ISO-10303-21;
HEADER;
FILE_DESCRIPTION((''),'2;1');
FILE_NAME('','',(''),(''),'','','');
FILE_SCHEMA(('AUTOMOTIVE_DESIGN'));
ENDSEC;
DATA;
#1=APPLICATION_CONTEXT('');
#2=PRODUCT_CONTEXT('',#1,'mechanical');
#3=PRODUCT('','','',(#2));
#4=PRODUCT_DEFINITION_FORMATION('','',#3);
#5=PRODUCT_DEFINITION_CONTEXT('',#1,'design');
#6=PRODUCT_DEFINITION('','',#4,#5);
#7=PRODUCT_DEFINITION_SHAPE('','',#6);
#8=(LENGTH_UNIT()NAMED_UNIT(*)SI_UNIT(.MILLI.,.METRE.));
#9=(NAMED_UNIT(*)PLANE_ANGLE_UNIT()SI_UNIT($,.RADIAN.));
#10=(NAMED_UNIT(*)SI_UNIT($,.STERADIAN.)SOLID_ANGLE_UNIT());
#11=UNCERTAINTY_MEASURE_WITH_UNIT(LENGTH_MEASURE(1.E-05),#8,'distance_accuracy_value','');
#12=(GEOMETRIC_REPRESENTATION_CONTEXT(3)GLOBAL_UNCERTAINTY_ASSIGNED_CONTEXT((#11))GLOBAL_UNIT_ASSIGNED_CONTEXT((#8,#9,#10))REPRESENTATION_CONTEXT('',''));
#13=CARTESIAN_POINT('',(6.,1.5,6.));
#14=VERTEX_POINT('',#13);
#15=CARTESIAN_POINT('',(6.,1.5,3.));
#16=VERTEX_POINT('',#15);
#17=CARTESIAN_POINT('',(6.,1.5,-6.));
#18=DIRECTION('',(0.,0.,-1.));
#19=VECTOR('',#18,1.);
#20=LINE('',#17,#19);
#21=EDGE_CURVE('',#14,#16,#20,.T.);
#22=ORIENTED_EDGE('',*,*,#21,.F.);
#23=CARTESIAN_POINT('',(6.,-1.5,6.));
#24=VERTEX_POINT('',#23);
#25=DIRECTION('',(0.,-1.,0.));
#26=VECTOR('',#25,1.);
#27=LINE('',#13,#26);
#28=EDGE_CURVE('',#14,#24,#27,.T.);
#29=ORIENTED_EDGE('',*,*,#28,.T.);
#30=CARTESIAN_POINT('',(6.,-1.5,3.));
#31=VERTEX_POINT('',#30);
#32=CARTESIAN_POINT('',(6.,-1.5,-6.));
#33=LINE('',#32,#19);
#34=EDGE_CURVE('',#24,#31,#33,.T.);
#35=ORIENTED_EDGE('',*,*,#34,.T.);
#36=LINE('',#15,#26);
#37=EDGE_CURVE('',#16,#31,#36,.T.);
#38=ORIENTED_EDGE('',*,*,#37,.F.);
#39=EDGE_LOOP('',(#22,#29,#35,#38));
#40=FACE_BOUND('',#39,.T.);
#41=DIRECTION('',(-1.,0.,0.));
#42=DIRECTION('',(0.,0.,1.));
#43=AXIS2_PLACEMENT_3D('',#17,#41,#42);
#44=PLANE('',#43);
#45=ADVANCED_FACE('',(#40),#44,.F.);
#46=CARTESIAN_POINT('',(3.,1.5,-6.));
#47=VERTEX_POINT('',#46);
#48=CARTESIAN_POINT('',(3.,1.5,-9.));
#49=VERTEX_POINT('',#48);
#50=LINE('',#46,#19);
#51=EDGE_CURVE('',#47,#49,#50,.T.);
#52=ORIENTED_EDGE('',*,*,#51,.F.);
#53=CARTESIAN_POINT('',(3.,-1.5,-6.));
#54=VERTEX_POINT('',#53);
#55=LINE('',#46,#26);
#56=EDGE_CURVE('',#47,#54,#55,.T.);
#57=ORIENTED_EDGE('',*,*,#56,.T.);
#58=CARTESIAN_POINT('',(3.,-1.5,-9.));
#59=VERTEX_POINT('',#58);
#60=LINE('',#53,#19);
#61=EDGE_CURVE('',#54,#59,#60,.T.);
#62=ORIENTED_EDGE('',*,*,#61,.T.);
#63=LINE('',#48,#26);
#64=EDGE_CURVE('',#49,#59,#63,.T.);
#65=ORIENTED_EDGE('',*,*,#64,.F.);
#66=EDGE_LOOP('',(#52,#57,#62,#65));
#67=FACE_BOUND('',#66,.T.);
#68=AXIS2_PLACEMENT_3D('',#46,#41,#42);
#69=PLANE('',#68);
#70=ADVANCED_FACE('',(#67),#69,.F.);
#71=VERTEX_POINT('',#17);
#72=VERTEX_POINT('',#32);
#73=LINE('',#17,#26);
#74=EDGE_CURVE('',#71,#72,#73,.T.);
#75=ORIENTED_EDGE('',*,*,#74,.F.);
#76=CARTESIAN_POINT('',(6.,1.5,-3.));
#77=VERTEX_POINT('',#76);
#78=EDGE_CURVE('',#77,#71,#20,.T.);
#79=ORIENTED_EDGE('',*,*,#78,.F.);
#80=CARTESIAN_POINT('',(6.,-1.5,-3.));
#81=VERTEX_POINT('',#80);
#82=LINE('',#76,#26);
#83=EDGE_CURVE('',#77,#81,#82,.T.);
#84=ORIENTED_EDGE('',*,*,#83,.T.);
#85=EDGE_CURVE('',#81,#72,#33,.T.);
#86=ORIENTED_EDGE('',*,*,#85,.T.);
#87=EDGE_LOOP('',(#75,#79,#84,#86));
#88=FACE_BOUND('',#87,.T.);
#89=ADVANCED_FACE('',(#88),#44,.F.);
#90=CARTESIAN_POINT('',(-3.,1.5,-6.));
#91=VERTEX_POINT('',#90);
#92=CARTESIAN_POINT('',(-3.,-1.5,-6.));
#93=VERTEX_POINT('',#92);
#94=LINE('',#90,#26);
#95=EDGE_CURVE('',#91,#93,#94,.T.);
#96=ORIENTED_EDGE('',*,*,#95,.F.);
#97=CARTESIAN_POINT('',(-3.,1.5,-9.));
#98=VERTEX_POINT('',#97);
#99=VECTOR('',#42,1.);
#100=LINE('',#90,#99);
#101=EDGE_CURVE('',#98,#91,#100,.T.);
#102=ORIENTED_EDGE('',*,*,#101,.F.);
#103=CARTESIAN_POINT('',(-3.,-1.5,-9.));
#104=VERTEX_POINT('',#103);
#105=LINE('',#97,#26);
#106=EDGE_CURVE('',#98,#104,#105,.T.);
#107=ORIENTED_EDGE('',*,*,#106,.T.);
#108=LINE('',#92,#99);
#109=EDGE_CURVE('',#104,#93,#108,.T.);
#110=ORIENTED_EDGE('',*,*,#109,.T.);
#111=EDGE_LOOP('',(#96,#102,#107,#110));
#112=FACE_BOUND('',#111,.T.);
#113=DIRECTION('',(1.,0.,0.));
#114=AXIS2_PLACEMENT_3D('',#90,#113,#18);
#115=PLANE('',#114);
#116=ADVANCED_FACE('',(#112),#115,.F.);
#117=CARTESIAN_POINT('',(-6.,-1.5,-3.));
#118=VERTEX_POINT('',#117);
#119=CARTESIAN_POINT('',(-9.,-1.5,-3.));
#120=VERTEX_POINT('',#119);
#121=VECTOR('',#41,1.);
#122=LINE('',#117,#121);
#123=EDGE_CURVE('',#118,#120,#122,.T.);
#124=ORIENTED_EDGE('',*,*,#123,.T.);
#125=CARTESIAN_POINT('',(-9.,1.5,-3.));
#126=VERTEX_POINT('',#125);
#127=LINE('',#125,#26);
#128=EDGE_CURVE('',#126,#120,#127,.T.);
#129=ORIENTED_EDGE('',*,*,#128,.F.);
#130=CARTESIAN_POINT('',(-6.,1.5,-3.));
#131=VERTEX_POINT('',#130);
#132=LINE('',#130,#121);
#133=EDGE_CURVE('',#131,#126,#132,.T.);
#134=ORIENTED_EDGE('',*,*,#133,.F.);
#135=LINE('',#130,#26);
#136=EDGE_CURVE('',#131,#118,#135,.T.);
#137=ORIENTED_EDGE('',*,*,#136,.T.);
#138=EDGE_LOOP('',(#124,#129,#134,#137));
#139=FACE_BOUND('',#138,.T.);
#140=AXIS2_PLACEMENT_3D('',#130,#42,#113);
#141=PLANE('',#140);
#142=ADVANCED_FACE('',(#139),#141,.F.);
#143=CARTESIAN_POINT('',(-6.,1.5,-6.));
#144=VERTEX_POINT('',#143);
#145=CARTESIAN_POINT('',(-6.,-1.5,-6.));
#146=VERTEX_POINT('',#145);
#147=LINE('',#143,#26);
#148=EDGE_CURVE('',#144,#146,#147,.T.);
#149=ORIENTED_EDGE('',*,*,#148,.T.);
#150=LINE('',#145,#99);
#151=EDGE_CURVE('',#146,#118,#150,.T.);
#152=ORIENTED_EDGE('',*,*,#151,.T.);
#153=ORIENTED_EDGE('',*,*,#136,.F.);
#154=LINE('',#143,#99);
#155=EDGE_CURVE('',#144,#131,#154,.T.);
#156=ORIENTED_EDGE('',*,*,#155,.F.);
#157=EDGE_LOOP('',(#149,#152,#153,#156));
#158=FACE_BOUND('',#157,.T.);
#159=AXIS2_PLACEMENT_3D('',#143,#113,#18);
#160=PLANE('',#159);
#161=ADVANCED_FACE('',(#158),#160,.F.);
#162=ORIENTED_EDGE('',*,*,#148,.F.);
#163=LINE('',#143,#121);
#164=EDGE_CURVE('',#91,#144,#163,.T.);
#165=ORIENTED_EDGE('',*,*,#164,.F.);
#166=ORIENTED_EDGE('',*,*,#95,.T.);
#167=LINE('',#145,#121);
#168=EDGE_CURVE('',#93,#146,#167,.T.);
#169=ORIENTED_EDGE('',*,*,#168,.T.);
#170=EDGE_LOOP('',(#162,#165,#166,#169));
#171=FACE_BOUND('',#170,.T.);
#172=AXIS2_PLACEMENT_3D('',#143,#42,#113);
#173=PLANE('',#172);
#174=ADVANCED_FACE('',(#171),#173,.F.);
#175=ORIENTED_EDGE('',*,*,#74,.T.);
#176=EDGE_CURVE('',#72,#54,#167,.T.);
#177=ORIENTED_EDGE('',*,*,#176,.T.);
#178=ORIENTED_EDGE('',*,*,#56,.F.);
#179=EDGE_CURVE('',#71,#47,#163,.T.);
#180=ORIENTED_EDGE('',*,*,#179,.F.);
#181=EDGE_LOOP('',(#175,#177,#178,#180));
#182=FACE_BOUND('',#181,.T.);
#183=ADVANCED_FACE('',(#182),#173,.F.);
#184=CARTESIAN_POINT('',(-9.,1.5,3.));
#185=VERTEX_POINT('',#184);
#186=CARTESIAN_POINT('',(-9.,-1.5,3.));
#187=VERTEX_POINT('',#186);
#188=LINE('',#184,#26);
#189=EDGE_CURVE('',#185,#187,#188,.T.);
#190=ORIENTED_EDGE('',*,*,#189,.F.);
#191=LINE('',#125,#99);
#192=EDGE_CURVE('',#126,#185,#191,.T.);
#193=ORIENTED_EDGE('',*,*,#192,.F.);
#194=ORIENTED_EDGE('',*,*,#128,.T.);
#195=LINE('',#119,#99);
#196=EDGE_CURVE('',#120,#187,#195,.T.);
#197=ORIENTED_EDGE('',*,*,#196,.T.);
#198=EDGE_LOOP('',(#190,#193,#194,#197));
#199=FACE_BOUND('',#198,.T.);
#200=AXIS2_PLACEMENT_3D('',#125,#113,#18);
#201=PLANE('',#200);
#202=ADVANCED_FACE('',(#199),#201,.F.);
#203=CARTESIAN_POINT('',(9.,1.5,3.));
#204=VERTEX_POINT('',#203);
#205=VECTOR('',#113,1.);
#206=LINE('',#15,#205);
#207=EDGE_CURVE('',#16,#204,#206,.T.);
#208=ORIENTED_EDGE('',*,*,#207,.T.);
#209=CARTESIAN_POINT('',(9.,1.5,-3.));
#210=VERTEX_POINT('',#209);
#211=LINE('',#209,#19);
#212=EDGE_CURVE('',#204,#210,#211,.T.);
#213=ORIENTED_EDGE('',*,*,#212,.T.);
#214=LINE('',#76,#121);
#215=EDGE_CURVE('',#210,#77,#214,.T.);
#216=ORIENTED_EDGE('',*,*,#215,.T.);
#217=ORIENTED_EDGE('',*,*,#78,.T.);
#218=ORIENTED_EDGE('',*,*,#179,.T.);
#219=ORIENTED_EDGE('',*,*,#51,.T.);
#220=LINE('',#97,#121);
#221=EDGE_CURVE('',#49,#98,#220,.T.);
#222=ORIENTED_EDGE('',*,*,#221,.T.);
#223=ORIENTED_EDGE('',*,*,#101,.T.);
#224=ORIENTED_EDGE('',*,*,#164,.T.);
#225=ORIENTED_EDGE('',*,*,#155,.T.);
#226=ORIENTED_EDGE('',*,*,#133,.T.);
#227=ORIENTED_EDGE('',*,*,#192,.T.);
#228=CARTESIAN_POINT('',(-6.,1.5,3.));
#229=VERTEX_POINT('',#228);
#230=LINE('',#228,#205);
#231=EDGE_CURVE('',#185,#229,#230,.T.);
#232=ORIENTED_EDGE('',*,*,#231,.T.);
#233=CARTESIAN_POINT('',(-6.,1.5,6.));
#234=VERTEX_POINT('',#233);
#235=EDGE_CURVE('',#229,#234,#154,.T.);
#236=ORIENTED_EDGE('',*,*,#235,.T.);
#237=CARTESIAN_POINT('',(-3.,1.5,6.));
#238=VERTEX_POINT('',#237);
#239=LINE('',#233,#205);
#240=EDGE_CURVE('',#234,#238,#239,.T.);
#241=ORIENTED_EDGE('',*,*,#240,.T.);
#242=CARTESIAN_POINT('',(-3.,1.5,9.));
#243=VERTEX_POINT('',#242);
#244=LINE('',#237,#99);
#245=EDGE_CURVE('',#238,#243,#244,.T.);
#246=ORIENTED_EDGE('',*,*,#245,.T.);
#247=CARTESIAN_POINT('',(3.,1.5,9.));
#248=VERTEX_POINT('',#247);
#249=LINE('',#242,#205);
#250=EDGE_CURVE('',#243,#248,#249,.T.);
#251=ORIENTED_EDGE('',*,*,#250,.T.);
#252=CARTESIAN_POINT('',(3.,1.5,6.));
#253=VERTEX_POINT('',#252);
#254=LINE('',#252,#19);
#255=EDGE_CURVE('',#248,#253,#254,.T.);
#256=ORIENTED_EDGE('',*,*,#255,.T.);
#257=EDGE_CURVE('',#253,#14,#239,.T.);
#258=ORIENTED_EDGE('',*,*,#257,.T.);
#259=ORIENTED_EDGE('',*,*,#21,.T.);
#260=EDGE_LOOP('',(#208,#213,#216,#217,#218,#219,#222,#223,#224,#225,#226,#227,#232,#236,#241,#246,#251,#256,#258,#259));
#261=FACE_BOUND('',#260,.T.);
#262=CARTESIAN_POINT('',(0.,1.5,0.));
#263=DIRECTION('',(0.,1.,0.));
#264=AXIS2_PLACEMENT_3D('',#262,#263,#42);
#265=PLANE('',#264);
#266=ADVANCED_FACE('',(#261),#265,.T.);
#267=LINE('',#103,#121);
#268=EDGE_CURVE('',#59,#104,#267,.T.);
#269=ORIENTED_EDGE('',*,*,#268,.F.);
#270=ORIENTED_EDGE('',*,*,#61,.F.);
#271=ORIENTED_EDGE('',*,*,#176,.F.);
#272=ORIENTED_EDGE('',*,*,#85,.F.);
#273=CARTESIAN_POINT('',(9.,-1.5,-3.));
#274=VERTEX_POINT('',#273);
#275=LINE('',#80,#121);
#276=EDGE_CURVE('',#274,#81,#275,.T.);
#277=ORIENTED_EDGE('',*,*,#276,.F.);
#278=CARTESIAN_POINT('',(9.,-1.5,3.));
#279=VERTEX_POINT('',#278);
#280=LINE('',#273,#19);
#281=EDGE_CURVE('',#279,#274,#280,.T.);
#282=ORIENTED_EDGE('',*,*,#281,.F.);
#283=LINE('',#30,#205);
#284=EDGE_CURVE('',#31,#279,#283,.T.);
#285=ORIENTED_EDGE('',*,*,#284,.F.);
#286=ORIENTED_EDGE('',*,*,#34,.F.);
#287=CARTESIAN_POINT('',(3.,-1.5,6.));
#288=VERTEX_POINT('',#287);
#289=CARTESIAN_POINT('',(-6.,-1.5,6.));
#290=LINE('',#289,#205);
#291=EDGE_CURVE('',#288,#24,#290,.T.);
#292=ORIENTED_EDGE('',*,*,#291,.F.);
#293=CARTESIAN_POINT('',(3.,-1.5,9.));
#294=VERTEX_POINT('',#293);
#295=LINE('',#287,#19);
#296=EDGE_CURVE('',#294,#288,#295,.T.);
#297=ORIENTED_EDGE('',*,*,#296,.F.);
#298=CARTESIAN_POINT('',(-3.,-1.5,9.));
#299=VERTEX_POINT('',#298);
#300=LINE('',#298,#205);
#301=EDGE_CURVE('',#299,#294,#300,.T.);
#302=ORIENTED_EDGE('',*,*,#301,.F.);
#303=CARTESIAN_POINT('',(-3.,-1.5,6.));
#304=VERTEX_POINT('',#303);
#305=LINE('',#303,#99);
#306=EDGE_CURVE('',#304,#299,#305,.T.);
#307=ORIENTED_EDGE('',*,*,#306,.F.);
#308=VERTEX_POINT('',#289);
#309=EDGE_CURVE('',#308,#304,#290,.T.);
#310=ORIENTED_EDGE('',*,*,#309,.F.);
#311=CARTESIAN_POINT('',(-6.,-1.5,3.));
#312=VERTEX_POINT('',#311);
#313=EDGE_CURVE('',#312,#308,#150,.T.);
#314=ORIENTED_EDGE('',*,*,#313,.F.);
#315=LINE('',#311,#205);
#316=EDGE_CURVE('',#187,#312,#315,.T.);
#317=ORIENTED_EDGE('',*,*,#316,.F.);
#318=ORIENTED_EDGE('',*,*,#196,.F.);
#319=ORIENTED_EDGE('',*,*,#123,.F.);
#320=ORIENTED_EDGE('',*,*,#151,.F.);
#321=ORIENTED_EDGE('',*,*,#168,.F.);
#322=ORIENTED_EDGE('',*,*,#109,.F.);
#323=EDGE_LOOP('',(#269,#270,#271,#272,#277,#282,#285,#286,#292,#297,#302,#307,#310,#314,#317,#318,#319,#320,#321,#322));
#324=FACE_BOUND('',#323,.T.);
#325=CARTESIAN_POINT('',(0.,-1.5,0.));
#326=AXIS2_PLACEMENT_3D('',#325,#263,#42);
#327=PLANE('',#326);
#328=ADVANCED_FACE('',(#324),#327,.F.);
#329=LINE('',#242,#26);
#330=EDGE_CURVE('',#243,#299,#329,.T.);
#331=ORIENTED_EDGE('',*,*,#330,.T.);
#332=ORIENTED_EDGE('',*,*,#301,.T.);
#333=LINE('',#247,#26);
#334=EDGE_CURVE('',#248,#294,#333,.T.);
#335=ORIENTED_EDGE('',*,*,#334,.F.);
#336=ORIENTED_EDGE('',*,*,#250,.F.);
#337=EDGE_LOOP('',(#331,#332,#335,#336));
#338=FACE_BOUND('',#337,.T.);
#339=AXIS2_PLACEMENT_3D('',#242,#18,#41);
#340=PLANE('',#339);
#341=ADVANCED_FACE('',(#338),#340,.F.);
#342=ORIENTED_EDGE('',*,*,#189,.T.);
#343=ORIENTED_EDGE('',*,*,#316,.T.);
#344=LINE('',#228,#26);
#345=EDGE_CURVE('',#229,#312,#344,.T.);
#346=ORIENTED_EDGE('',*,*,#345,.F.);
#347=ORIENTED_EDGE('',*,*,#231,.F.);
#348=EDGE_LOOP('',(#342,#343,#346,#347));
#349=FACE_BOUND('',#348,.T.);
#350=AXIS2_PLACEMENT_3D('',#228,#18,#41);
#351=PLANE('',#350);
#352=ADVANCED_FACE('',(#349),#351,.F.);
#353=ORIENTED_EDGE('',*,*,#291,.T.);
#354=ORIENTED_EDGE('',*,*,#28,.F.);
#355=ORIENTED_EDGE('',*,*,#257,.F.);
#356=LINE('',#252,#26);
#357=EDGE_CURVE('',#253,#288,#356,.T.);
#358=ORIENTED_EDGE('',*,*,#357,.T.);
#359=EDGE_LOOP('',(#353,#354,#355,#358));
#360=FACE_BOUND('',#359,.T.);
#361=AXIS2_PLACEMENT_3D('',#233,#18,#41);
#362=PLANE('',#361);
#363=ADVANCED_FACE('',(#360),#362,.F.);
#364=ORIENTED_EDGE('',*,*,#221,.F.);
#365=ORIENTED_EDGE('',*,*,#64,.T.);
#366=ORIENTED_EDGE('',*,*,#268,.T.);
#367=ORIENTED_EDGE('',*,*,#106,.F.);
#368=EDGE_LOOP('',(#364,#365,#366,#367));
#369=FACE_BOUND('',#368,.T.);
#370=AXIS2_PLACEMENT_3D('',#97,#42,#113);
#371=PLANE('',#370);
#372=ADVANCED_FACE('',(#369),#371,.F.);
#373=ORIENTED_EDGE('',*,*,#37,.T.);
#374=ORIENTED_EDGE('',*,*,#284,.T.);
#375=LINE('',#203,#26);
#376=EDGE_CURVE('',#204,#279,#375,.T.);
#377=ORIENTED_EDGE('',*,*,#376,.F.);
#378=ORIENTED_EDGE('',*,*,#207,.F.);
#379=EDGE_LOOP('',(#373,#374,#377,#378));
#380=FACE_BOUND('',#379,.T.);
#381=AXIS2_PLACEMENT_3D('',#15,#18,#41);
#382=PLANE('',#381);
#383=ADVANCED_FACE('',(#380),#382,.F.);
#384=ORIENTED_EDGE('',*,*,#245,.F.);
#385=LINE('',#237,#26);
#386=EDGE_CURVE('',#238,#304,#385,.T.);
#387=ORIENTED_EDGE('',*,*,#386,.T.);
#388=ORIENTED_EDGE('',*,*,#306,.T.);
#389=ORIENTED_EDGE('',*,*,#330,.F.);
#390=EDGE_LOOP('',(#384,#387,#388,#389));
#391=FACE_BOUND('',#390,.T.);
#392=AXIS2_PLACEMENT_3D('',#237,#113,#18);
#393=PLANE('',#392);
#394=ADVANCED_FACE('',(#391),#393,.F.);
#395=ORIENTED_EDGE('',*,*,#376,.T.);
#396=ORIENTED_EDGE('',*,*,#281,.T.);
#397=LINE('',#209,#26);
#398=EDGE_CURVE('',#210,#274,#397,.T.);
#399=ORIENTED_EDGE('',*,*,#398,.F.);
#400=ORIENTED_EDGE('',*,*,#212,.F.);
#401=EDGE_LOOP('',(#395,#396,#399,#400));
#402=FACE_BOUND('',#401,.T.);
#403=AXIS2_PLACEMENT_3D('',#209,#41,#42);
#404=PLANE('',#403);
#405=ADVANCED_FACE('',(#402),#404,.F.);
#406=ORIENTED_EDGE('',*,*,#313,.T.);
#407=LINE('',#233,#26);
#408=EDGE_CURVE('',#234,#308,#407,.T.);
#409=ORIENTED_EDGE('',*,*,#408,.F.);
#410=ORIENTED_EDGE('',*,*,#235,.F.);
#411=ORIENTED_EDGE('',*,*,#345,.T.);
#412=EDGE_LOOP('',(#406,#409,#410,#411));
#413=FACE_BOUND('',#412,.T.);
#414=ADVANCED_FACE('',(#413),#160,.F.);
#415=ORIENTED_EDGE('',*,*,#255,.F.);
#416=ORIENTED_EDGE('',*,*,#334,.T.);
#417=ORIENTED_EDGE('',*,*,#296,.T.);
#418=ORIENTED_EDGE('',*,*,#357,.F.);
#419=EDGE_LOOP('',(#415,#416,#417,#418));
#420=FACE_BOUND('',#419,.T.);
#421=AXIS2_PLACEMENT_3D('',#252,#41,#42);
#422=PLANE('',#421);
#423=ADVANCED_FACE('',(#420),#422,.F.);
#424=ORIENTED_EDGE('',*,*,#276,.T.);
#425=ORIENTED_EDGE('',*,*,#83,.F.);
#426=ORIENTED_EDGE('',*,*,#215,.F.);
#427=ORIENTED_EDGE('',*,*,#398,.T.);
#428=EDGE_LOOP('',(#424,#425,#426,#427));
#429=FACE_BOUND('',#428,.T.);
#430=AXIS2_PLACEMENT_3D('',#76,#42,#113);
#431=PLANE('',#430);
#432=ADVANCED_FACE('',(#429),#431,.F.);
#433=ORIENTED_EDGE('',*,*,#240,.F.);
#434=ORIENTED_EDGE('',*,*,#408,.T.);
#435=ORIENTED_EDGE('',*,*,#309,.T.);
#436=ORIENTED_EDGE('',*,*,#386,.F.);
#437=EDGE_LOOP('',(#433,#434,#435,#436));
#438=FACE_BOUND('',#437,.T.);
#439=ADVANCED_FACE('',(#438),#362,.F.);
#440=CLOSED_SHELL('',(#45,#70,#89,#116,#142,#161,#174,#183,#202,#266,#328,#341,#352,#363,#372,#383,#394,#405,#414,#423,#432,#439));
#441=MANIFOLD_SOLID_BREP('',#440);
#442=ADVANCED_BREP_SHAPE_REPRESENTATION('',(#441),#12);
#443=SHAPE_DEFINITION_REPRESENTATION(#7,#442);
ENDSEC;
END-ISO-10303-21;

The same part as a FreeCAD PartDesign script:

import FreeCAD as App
import Part
import Sketcher

V = App.Vector

doc = App.newDocument("Part")
params = doc.addObject("Spreadsheet::Sheet", "Params")
for row, (alias, value) in enumerate([
    ("sketch1_width", "12 mm"),
    ("pad1_length", "3 mm"),
    ("sketch2_width", "6 mm"),
    ("sketch2_width2", "3 mm"),
    ("pad2_length", "3 mm"),
], start=1):
    params.set(f"A{row}", alias)
    params.set(f"B{row}", "=" + value)
    params.setAlias(f"B{row}", alias)

body = doc.addObject("PartDesign::Body", "Body")

sketch1 = body.newObject("Sketcher::SketchObject", "Sketch")
sketch1.AttachmentSupport = (doc.getObject("XZ_Plane"), [""])
sketch1.MapMode = "FlatFace"
sketch1.addGeometry(Part.LineSegment(V(-6, -6, 0), V(-6, 6, 0)), False)
sketch1.addGeometry(Part.LineSegment(V(-6, 6, 0), V(6, 6, 0)), False)
sketch1.addGeometry(Part.LineSegment(V(6, 6, 0), V(6, -6, 0)), False)
sketch1.addGeometry(Part.LineSegment(V(6, -6, 0), V(-6, -6, 0)), False)
sketch1.addConstraint(Sketcher.Constraint("Coincident", 0, 2, 1, 1))
sketch1.addConstraint(Sketcher.Constraint("Coincident", 1, 2, 2, 1))
sketch1.addConstraint(Sketcher.Constraint("Coincident", 2, 2, 3, 1))
sketch1.addConstraint(Sketcher.Constraint("Coincident", 3, 2, 0, 1))
sketch1.addConstraint(Sketcher.Constraint("Vertical", 0))
sketch1.addConstraint(Sketcher.Constraint("Horizontal", 1))
sketch1.addConstraint(Sketcher.Constraint("Vertical", 2))
sketch1.addConstraint(Sketcher.Constraint("Horizontal", 3))
sketch1.addConstraint(Sketcher.Constraint("Symmetric", 0, 2, 2, 2, -1, 1))
sketch1.addConstraint(Sketcher.Constraint("Equal", 3, 0))
sketch1.addConstraint(Sketcher.Constraint("DistanceX", 1, 1, 1, 2, 12.0))
sketch1.setExpression("Constraints[10]", "Params.sketch1_width")
pad1 = body.newObject("PartDesign::Pad", "Pad")
pad1.Profile = sketch1
pad1.setExpression("Length", "Params.pad1_length")
pad1.Midplane = True

sketch2 = body.newObject("Sketcher::SketchObject", "Sketch001")
sketch2.AttachmentSupport = (doc.getObject("XZ_Plane"), [""])
sketch2.MapMode = "FlatFace"
sketch2.addGeometry(Part.LineSegment(V(-3, -9, 0), V(-3, -6, 0)), False)
sketch2.addGeometry(Part.LineSegment(V(-3, -6, 0), V(3, -6, 0)), False)
sketch2.addGeometry(Part.LineSegment(V(3, -6, 0), V(3, -9, 0)), False)
sketch2.addGeometry(Part.LineSegment(V(3, -9, 0), V(-3, -9, 0)), False)
sketch2.addGeometry(Part.LineSegment(V(-3, 6, 0), V(-3, 9, 0)), False)
sketch2.addGeometry(Part.LineSegment(V(-3, 9, 0), V(3, 9, 0)), False)
sketch2.addGeometry(Part.LineSegment(V(3, 9, 0), V(3, 6, 0)), False)
sketch2.addGeometry(Part.LineSegment(V(3, 6, 0), V(-3, 6, 0)), False)
sketch2.addGeometry(Part.LineSegment(V(-9, -3, 0), V(-9, 3, 0)), False)
sketch2.addGeometry(Part.LineSegment(V(-9, 3, 0), V(-6, 3, 0)), False)
sketch2.addGeometry(Part.LineSegment(V(-6, 3, 0), V(-6, -3, 0)), False)
sketch2.addGeometry(Part.LineSegment(V(-6, -3, 0), V(-9, -3, 0)), False)
sketch2.addGeometry(Part.LineSegment(V(6, -3, 0), V(6, 3, 0)), False)
sketch2.addGeometry(Part.LineSegment(V(6, 3, 0), V(9, 3, 0)), False)
sketch2.addGeometry(Part.LineSegment(V(9, 3, 0), V(9, -3, 0)), False)
sketch2.addGeometry(Part.LineSegment(V(9, -3, 0), V(6, -3, 0)), False)
sketch2.addConstraint(Sketcher.Constraint("Coincident", 0, 2, 1, 1))
sketch2.addConstraint(Sketcher.Constraint("Coincident", 1, 2, 2, 1))
sketch2.addConstraint(Sketcher.Constraint("Coincident", 2, 2, 3, 1))
sketch2.addConstraint(Sketcher.Constraint("Coincident", 3, 2, 0, 1))
sketch2.addConstraint(Sketcher.Constraint("Coincident", 4, 2, 5, 1))
sketch2.addConstraint(Sketcher.Constraint("Coincident", 5, 2, 6, 1))
sketch2.addConstraint(Sketcher.Constraint("Coincident", 6, 2, 7, 1))
sketch2.addConstraint(Sketcher.Constraint("Coincident", 7, 2, 4, 1))
sketch2.addConstraint(Sketcher.Constraint("Coincident", 8, 2, 9, 1))
sketch2.addConstraint(Sketcher.Constraint("Coincident", 9, 2, 10, 1))
sketch2.addConstraint(Sketcher.Constraint("Coincident", 10, 2, 11, 1))
sketch2.addConstraint(Sketcher.Constraint("Coincident", 11, 2, 8, 1))
sketch2.addConstraint(Sketcher.Constraint("Coincident", 12, 2, 13, 1))
sketch2.addConstraint(Sketcher.Constraint("Coincident", 13, 2, 14, 1))
sketch2.addConstraint(Sketcher.Constraint("Coincident", 14, 2, 15, 1))
sketch2.addConstraint(Sketcher.Constraint("Coincident", 15, 2, 12, 1))
sketch2.addConstraint(Sketcher.Constraint("Vertical", 0))
sketch2.addConstraint(Sketcher.Constraint("Horizontal", 1))
sketch2.addConstraint(Sketcher.Constraint("Vertical", 2))
sketch2.addConstraint(Sketcher.Constraint("Horizontal", 3))
sketch2.addConstraint(Sketcher.Constraint("Vertical", 4))
sketch2.addConstraint(Sketcher.Constraint("Horizontal", 5))
sketch2.addConstraint(Sketcher.Constraint("Vertical", 6))
sketch2.addConstraint(Sketcher.Constraint("Horizontal", 7))
sketch2.addConstraint(Sketcher.Constraint("Vertical", 8))
sketch2.addConstraint(Sketcher.Constraint("Horizontal", 9))
sketch2.addConstraint(Sketcher.Constraint("Vertical", 10))
sketch2.addConstraint(Sketcher.Constraint("Horizontal", 11))
sketch2.addConstraint(Sketcher.Constraint("Vertical", 12))
sketch2.addConstraint(Sketcher.Constraint("Horizontal", 13))
sketch2.addConstraint(Sketcher.Constraint("Vertical", 14))
sketch2.addConstraint(Sketcher.Constraint("Horizontal", 15))
sketch2.addConstraint(Sketcher.Constraint("Symmetric", 2, 2, 4, 2, -1, 1))
sketch2.addConstraint(Sketcher.Constraint("Symmetric", 0, 2, 6, 2, -1, 1))
sketch2.addConstraint(Sketcher.Constraint("Symmetric", 10, 2, 12, 2, -1, 1))
sketch2.addConstraint(Sketcher.Constraint("Symmetric", 8, 2, 14, 2, -1, 1))
sketch2.addConstraint(Sketcher.Constraint("Horizontal", 9, 2, 12, 2))
sketch2.addConstraint(Sketcher.Constraint("Vertical", 3, 2, 4, 2))
sketch2.addConstraint(Sketcher.Constraint("Equal", 15, 0))
sketch2.addConstraint(Sketcher.Constraint("Equal", 7, 8))
sketch2.addConstraint(Sketcher.Constraint("DistanceX", 1, 1, 1, 2, 6.0))
sketch2.addConstraint(Sketcher.Constraint("DistanceX", 9, 1, 9, 2, 3.0))
sketch2.addConstraint(Sketcher.Constraint("DistanceY", 0, 2, -1, 1, 6.0))
sketch2.addConstraint(Sketcher.Constraint("DistanceX", 8, 2, -1, 1, 9.0))
sketch2.setExpression("Constraints[40]", "Params.sketch2_width")
sketch2.setExpression("Constraints[41]", "Params.sketch2_width2")
pad2 = body.newObject("PartDesign::Pad", "Pad001")
pad2.Profile = sketch2
pad2.setExpression("Length", "Params.pad2_length")
pad2.Midplane = True

doc.recompute()
